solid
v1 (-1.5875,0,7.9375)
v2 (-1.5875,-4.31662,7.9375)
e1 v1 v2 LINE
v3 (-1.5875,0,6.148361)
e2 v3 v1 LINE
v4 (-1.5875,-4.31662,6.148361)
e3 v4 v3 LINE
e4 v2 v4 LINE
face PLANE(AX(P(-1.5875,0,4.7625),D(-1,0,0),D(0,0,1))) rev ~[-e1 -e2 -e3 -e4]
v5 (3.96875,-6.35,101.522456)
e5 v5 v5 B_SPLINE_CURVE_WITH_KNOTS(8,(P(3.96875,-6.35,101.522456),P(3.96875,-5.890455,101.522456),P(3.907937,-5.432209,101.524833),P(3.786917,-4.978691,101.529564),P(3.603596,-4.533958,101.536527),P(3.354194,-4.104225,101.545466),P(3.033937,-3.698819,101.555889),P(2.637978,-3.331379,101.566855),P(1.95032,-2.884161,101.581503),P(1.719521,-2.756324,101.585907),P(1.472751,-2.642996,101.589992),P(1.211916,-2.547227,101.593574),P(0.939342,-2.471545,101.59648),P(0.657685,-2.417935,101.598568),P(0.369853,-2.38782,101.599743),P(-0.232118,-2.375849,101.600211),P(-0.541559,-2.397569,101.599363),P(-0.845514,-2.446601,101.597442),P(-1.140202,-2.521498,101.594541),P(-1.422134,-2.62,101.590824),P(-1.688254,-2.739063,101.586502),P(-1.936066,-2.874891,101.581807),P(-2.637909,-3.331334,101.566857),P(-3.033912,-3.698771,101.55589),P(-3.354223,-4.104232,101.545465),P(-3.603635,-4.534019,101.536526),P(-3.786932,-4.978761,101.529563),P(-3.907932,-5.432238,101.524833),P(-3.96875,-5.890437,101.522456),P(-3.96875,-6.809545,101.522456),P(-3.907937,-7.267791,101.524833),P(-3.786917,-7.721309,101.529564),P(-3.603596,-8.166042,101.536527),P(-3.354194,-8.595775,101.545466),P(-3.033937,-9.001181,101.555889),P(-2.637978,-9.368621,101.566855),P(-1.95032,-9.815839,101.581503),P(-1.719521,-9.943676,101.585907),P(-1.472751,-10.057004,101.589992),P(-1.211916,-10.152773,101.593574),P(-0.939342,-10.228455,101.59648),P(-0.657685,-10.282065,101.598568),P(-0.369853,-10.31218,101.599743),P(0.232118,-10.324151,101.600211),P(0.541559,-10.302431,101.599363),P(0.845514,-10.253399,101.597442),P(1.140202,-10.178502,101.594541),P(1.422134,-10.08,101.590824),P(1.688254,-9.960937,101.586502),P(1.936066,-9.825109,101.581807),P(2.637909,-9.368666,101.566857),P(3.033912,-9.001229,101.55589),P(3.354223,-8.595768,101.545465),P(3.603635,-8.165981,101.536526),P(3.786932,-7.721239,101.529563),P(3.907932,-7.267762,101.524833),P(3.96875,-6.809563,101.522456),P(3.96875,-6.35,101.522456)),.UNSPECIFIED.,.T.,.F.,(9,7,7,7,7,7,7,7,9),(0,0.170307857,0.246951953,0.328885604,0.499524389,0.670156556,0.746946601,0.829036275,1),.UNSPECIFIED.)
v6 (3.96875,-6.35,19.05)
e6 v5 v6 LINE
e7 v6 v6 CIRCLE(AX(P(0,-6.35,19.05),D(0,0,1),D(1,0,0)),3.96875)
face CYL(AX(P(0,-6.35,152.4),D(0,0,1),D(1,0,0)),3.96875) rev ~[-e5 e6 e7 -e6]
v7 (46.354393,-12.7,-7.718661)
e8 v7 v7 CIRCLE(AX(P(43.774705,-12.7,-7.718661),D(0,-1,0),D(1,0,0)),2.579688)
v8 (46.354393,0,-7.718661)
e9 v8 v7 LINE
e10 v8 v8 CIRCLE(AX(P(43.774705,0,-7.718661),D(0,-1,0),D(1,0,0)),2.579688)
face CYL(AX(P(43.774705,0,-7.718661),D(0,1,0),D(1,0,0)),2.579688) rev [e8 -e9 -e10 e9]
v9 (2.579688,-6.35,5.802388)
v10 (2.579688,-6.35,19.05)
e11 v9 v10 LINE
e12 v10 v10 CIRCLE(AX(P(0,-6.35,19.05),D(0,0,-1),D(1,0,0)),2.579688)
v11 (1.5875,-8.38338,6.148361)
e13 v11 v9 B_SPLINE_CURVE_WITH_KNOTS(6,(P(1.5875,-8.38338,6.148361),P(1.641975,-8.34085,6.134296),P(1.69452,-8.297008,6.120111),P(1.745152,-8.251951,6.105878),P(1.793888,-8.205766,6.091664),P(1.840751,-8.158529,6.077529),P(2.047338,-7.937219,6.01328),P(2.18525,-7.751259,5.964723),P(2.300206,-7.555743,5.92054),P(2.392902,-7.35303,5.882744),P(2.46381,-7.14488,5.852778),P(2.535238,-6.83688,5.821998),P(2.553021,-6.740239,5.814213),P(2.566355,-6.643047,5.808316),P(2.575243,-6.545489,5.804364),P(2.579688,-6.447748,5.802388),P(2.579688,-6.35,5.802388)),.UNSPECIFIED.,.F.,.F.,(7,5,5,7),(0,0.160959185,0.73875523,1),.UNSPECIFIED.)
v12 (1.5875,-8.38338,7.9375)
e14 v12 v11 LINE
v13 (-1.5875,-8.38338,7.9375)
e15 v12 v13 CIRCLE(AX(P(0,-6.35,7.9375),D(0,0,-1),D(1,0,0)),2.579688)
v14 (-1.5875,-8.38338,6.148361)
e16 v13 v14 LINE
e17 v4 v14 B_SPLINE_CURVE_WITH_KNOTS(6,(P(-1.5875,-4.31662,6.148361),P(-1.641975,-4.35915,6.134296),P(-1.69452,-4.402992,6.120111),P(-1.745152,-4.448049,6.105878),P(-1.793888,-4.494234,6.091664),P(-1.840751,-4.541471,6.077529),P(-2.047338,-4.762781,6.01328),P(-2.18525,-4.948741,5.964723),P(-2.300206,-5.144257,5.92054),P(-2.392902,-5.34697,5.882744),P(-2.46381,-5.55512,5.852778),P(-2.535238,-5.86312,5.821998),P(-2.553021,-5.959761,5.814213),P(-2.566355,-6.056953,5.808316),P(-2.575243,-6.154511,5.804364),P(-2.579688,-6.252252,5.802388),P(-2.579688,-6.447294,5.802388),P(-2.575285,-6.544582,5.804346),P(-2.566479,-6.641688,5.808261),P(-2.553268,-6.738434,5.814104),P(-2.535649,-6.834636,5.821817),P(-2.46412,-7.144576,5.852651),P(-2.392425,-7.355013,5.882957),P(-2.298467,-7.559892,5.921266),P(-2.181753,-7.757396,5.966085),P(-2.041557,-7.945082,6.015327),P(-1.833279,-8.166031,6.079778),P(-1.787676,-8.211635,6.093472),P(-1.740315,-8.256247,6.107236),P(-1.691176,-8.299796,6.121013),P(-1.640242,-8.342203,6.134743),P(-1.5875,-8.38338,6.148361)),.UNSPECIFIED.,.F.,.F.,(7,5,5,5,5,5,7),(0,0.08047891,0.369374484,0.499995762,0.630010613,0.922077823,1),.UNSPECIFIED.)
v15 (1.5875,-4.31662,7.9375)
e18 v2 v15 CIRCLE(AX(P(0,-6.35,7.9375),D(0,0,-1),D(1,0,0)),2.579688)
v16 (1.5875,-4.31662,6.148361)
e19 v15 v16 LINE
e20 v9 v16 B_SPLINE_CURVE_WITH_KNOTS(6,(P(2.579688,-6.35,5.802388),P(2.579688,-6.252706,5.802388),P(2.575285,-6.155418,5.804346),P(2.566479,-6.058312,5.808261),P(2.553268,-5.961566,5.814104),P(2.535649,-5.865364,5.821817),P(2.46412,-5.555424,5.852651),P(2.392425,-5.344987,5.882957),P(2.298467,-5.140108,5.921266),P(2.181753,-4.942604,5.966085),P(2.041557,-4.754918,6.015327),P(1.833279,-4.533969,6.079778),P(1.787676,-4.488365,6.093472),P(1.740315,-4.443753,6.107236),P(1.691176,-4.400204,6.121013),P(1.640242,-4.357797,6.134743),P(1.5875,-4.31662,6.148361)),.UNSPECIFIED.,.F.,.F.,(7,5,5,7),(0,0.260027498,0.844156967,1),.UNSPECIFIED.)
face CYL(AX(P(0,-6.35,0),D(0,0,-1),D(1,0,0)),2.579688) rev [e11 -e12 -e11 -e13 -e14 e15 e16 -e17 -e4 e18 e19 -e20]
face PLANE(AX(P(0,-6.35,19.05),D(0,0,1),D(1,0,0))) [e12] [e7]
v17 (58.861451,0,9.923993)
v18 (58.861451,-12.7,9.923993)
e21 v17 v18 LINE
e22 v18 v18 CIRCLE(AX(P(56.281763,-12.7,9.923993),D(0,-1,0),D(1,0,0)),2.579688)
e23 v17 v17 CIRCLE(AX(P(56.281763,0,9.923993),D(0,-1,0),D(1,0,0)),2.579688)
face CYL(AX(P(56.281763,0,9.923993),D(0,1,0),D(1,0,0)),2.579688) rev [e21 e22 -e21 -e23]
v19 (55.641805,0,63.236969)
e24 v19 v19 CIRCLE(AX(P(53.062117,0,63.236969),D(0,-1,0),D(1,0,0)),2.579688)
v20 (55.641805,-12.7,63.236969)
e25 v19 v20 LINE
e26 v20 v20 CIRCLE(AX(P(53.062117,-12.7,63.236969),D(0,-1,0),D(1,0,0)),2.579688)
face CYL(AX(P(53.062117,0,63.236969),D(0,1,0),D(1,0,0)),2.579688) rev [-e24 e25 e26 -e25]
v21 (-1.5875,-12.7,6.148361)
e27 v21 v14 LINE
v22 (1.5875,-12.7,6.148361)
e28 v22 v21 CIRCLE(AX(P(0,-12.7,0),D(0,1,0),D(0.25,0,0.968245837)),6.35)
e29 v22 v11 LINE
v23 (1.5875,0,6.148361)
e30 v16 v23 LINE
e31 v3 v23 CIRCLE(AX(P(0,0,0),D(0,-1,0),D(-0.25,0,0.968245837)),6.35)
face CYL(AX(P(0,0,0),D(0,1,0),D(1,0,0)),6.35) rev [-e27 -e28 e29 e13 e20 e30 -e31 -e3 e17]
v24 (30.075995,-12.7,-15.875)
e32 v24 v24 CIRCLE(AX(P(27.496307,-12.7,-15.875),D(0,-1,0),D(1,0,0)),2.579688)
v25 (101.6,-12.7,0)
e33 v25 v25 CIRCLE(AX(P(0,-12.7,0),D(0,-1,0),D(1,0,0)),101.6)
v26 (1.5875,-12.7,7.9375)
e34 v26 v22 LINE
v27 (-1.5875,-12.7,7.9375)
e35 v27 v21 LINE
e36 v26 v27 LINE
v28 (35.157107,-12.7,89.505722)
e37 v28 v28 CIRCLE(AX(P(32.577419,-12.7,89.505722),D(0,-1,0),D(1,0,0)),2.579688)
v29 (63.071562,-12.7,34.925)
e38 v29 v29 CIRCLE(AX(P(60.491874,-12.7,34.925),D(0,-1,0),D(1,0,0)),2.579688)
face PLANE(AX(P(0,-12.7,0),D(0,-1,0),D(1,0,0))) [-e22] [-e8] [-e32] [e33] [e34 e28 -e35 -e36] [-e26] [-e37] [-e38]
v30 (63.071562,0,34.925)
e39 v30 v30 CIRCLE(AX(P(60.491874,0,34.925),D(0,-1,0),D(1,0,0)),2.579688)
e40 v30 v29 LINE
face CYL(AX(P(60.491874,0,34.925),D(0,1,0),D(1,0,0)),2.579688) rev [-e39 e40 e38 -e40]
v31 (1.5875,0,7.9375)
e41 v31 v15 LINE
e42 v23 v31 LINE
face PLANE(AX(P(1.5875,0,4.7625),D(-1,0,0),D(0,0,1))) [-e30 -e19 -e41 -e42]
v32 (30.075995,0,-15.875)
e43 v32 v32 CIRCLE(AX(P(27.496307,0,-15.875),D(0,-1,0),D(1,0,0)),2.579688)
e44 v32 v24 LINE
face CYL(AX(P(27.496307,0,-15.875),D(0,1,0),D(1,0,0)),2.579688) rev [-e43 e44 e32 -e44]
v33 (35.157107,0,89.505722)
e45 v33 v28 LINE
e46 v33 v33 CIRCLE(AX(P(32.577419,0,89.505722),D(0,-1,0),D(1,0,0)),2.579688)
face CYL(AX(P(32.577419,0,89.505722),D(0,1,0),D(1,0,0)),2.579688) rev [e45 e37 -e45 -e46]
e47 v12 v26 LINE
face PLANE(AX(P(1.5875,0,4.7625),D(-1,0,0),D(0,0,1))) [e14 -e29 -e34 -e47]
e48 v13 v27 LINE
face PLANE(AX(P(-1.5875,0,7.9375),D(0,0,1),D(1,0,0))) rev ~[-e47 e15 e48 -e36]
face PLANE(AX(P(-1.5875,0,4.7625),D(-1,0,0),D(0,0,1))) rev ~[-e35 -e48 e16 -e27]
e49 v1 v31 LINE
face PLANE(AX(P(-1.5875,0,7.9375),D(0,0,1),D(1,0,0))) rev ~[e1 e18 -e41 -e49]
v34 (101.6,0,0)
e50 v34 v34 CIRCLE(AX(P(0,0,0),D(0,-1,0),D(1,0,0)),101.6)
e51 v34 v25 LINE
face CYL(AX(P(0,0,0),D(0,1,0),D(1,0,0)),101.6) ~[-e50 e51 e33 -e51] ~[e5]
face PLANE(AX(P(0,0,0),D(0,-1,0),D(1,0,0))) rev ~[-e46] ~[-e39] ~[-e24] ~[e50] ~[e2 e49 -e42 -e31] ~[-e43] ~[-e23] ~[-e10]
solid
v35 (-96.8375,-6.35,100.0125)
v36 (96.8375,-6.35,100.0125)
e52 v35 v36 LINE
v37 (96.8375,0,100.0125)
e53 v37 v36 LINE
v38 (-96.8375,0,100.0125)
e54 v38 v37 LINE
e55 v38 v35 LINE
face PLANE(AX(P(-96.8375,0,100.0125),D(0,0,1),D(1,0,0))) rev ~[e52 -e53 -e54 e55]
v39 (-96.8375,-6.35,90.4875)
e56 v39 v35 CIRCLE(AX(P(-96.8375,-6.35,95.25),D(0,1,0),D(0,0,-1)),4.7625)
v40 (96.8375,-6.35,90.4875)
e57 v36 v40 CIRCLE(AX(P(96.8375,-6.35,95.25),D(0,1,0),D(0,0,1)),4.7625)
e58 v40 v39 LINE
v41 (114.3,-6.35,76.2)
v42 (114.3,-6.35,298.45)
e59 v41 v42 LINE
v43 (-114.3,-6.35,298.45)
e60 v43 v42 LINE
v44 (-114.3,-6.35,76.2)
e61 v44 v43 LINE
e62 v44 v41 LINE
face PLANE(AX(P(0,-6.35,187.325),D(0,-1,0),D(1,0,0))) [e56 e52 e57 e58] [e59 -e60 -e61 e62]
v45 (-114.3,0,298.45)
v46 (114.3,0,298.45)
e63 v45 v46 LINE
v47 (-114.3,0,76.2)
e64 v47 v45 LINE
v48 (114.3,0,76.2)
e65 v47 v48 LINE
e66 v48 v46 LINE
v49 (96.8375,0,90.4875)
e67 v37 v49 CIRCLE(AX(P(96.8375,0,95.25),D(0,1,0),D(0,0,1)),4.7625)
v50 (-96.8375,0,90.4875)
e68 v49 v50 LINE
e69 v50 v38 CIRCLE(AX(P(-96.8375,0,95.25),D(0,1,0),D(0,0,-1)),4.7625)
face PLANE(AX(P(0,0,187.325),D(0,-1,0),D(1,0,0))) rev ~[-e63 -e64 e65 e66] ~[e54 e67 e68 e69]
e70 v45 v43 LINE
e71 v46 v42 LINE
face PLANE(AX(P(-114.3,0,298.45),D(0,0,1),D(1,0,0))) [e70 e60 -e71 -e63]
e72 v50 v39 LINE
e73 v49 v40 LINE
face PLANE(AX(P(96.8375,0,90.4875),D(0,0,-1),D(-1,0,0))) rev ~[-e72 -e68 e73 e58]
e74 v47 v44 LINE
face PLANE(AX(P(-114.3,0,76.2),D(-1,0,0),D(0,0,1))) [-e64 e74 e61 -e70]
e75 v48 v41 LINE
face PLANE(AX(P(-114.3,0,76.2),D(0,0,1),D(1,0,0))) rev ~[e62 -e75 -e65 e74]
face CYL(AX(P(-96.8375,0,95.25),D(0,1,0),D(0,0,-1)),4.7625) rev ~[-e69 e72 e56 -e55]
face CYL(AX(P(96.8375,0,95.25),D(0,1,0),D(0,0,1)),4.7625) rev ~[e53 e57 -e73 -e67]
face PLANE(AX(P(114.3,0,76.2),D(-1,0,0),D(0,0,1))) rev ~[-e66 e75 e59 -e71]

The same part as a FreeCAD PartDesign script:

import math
import FreeCAD as App
import Part
import Sketcher
Q = App.Units.Quantity

doc = App.newDocument("Part")
body = doc.addObject("PartDesign::Body", "Body")

sketch1 = body.newObject("Sketcher::SketchObject", "Sketch")
sketch1.AttachmentSupport = (doc.getObject("XZ_Plane"), [""])
sketch1.MapMode = "FlatFace"
sketch1.addGeometry(Part.Circle(App.Vector(0, 0, 0), App.Vector(0, 0, 1), 102), False)
sketch1.addGeometry(Part.Circle(App.Vector(0, 0, 0), App.Vector(0, 0, 1), 6), False)
sketch1.addConstraint(Sketcher.Constraint("Coincident", 0, 3, -1, 1))
sketch1.addConstraint(Sketcher.Constraint("Coincident", 1, 3, -1, 1))
sketch1.addConstraint(Sketcher.Constraint("Diameter", 0, Q("8 in")))
sketch1.addConstraint(Sketcher.Constraint("Diameter", 1, Q("0.5 in")))
pad1 = body.newObject("PartDesign::Pad", "Pad")
pad1.Profile = sketch1
pad1.Length = Q("0.5 in")

sketch2 = body.newObject("Sketcher::SketchObject", "Sketch001")
sketch2.AttachmentSupport = (doc.getObject("XZ_Plane"), [""])
sketch2.MapMode = "FlatFace"
sketch2.addGeometry(Part.LineSegment(App.Vector(-1.6, 7.9, 0), App.Vector(-1.6, 4.8, 0)), False)
sketch2.addGeometry(Part.LineSegment(App.Vector(-1.6, 4.8, 0), App.Vector(1.6, 4.8, 0)), False)
sketch2.addGeometry(Part.LineSegment(App.Vector(1.6, 4.8, 0), App.Vector(1.6, 7.9, 0)), False)
sketch2.addGeometry(Part.LineSegment(App.Vector(1.6, 7.9, 0), App.Vector(-1.6, 7.9, 0)), False)
sketch2.addConstraint(Sketcher.Constraint("Coincident", 0, 2, 1, 1))
sketch2.addConstraint(Sketcher.Constraint("Coincident", 1, 2, 2, 1))
sketch2.addConstraint(Sketcher.Constraint("Coincident", 2, 2, 3, 1))
sketch2.addConstraint(Sketcher.Constraint("Coincident", 3, 2, 0, 1))
sketch2.addConstraint(Sketcher.Constraint("Vertical", 0))
sketch2.addConstraint(Sketcher.Constraint("Horizontal", 1))
sketch2.addConstraint(Sketcher.Constraint("Vertical", 2))
sketch2.addConstraint(Sketcher.Constraint("Horizontal", 3))
sketch2.addConstraint(Sketcher.Constraint("Equal", 3, 0))
sketch2.addConstraint(Sketcher.Constraint("DistanceX", 1, 1, 1, 2, Q("0.125 in")))
sketch2.addConstraint(Sketcher.Constraint("DistanceX", 0, 2, -1, 1, Q("0.0625 in")))
sketch2.addConstraint(Sketcher.Constraint("DistanceY", -1, 1, 0, 2, Q("0.1875 in")))
pocket1 = body.newObject("PartDesign::Pocket", "Pocket")
pocket1.Profile = sketch2
pocket1.Type = "ThroughAll"
pocket1.Reversed = True

sketch3 = body.newObject("Sketcher::SketchObject", "Sketch002")
sketch3.AttachmentSupport = (doc.getObject("XZ_Plane"), [""])
sketch3.MapMode = "FlatFace"
sketch3.addGeometry(Part.Circle(App.Vector(32.6, 89.5, 0), App.Vector(0, 0, 1), 2.6), False)
sketch3.addGeometry(Part.Circle(App.Vector(53.1, 63.2, 0), App.Vector(0, 0, 1), 2.6), False)
sketch3.addGeometry(Part.Circle(App.Vector(60.5, 34.9, 0), App.Vector(0, 0, 1), 2.6), False)
sketch3.addGeometry(Part.Circle(App.Vector(56.3, 9.9, 0), App.Vector(0, 0, 1), 2.6), False)
sketch3.addGeometry(Part.Circle(App.Vector(43.8, -7.7, 0), App.Vector(0, 0, 1), 2.6), False)
sketch3.addGeometry(Part.Circle(App.Vector(27.5, -15.9, 0), App.Vector(0, 0, 1), 2.6), False)
sketch3.addConstraint(Sketcher.Constraint("Equal", 0, 1))
sketch3.addConstraint(Sketcher.Constraint("Equal", 1, 2))
sketch3.addConstraint(Sketcher.Constraint("Equal", 2, 3))
sketch3.addConstraint(Sketcher.Constraint("Equal", 3, 4))
sketch3.addConstraint(Sketcher.Constraint("Equal", 4, 5))
sketch3.addConstraint(Sketcher.Constraint("Diameter", 0, Q("0.203125 in")))
sketch3.addConstraint(Sketcher.Constraint("DistanceY", 5, 3, 2, 3, Q("2 in")))
sketch3.addConstraint(Sketcher.Constraint("DistanceY", -1, 1, 2, 3, Q("1.375 in")))
sketch3.addConstraint(Sketcher.Constraint("DistanceX", 0, 3, 1, 3, Q("20.484698 mm")))
sketch3.addConstraint(Sketcher.Constraint("DistanceX", -1, 1, 0, 3, Q("32.577419 mm")))
sketch3.addConstraint(Sketcher.Constraint("DistanceY", -1, 1, 1, 3, Q("63.236969 mm")))
sketch3.addConstraint(Sketcher.Constraint("DistanceY", 4, 3, -1, 1, Q("7.718661 mm")))
sketch3.addConstraint(Sketcher.Constraint("DistanceX", 3, 3, 2, 3, Q("4.210111 mm")))
sketch3.addConstraint(Sketcher.Constraint("DistanceY", 3, 3, 0, 3, Q("79.581729 mm")))
sketch3.addConstraint(Sketcher.Constraint("DistanceX", 4, 3, 3, 3, Q("12.507058 mm")))
sketch3.addConstraint(Sketcher.Constraint("DistanceX", 5, 3, 1, 3, Q("25.56581 mm")))
sketch3.addConstraint(Sketcher.Constraint("DistanceY", -1, 1, 0, 3, Q("89.505722 mm")))
sketch3.addConstraint(Sketcher.Constraint("DistanceX", -1, 1, 2, 3, Q("60.491874 mm")))
pocket2 = body.newObject("PartDesign::Pocket", "Pocket001")
pocket2.Profile = sketch3
pocket2.Type = "ThroughAll"
pocket2.Reversed = True

sketch4 = body.newObject("Sketcher::SketchObject", "Sketch003")
sketch4.AttachmentSupport = (doc.getObject("XY_Plane"), [""])
sketch4.MapMode = "FlatFace"
sketch4.addGeometry(Part.Circle(App.Vector(0, -6.3, 0), App.Vector(0, 0, 1), 2.6), False)
sketch4.addConstraint(Sketcher.Constraint("PointOnObject", 0, 3, -2))
sketch4.addConstraint(Sketcher.Constraint("Diameter", 0, Q("0.203125 in")))
sketch4.addConstraint(Sketcher.Constraint("DistanceY", 0, 3, -1, 1, Q("0.25 in")))
pocket3 = body.newObject("PartDesign::Pocket", "Pocket002")
pocket3.Profile = sketch4
pocket3.Length = Q("1 in")
pocket3.Reversed = True

sketch5 = body.newObject("Sketcher::SketchObject", "Sketch004")
sketch5.AttachmentSupport = (doc.getObject("XY_Plane"), [""])
sketch5.MapMode = "FlatFace"
sketch5.AttachmentOffset = App.Placement(App.Vector(0, 0, 6 * 25.4), App.Rotation())
sketch5.addGeometry(Part.Circle(App.Vector(0, -6.3, 0), App.Vector(0, 0, 1), 4), False)
sketch5.addConstraint(Sketcher.Constraint("PointOnObject", 0, 3, -2))
sketch5.addConstraint(Sketcher.Constraint("Diameter", 0, Q("0.3125 in")))
sketch5.addConstraint(Sketcher.Constraint("DistanceY", 0, 3, -1, 1, Q("0.25 in")))
pocket4 = body.newObject("PartDesign::Pocket", "Pocket003")
pocket4.Profile = sketch5
pocket4.Length = Q("5.25 in")
body2 = doc.addObject("PartDesign::Body", "Body001")

sketch6 = body2.newObject("Sketcher::SketchObject", "Sketch005")
sketch6.AttachmentSupport = (doc.getObject("XZ_Plane001"), [""])
sketch6.MapMode = "FlatFace"
sketch6.addGeometry(Part.LineSegment(App.Vector(-114.3, 298.4, 0), App.Vector(-114.3, 76.2, 0)), False)
sketch6.addGeometry(Part.LineSegment(App.Vector(-114.3, 76.2, 0), App.Vector(114.3, 76.2, 0)), False)
sketch6.addGeometry(Part.LineSegment(App.Vector(114.3, 76.2, 0), App.Vector(114.3, 298.4, 0)), False)
sketch6.addGeometry(Part.LineSegment(App.Vector(114.3, 298.4, 0), App.Vector(-114.3, 298.4, 0)), False)
sketch6.addGeometry(Part.LineSegment(App.Vector(-96.8, 100, 0), App.Vector(96.8, 100, 0)), False)
sketch6.addGeometry(Part.ArcOfCircle(Part.Circle(App.Vector(96.8, 95.2, 0), App.Vector(0, 0, 1), 4.8), math.radians(-90), math.radians(90)), False)
sketch6.addGeometry(Part.LineSegment(App.Vector(96.8, 90.5, 0), App.Vector(-96.8, 90.5, 0)), False)
sketch6.addGeometry(Part.ArcOfCircle(Part.Circle(App.Vector(-96.8, 95.2, 0), App.Vector(0, 0, 1), 4.8), math.radians(90), math.radians(270)), False)
sketch6.addConstraint(Sketcher.Constraint("Coincident", 0, 2, 1, 1))
sketch6.addConstraint(Sketcher.Constraint("Coincident", 1, 2, 2, 1))
sketch6.addConstraint(Sketcher.Constraint("Coincident", 2, 2, 3, 1))
sketch6.addConstraint(Sketcher.Constraint("Coincident", 3, 2, 0, 1))
sketch6.addConstraint(Sketcher.Constraint("Tangent", 4, 2, 5, 2))
sketch6.addConstraint(Sketcher.Constraint("Tangent", 5, 1, 6, 1))
sketch6.addConstraint(Sketcher.Constraint("Tangent", 6, 2, 7, 2))
sketch6.addConstraint(Sketcher.Constraint("Tangent", 7, 1, 4, 1))
sketch6.addConstraint(Sketcher.Constraint("Vertical", 0))
sketch6.addConstraint(Sketcher.Constraint("Horizontal", 1))
sketch6.addConstraint(Sketcher.Constraint("Vertical", 2))
sketch6.addConstraint(Sketcher.Constraint("Horizontal", 3))
sketch6.addConstraint(Sketcher.Constraint("Horizontal", 4))
sketch6.addConstraint(Sketcher.Constraint("Horizontal", 6))
sketch6.addConstraint(Sketcher.Constraint("DistanceX", 1, 1, 1, 2, Q("9 in")))
sketch6.addConstraint(Sketcher.Constraint("DistanceY", -1, 1, 0, 2, Q("3 in")))
sketch6.addConstraint(Sketcher.Constraint("Radius", 5, Q("0.1875 in")))
sketch6.addConstraint(Sketcher.Constraint("DistanceY", 5, 3, 2, 2, Q("8 in")))
sketch6.addConstraint(Sketcher.Constraint("DistanceY", 0, 2, 0, 1, Q("8.75 in")))
sketch6.addConstraint(Sketcher.Constraint("DistanceX", 0, 2, -1, 1, Q("4.5 in")))
sketch6.addConstraint(Sketcher.Constraint("DistanceX", 4, 1, 4, 2, Q("7.625 in")))
sketch6.addConstraint(Sketcher.Constraint("DistanceX", -1, 1, 5, 3, Q("3.8125 in")))
pad2 = body2.newObject("PartDesign::Pad", "Pad001")
pad2.Profile = sketch6
pad2.Length = Q("0.25 in")

doc.recompute()
